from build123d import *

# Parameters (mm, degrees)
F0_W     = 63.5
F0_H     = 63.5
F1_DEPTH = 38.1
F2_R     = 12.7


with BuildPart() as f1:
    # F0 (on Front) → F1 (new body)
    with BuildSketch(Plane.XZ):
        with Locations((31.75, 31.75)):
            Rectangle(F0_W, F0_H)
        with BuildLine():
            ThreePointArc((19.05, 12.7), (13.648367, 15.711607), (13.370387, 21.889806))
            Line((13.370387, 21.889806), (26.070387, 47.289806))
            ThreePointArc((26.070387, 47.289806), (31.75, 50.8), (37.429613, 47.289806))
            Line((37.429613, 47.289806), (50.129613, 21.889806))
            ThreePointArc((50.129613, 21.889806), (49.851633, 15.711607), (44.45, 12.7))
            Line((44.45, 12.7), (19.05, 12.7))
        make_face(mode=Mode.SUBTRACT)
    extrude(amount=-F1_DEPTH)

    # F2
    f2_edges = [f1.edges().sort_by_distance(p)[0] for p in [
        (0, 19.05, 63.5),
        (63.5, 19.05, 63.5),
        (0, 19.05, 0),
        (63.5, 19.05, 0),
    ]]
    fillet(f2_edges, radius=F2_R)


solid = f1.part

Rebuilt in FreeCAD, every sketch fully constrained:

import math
import FreeCAD as App
import Part
import Sketcher
Q = App.Units.Quantity


def edges_at(feature, points):
    """Names of the edges that pass closest to the given points."""
    edges = feature.Shape.Edges
    near = lambda p: min(range(len(edges)), key=lambda i: edges[i].distToShape(Part.Vertex(*p))[0])
    return sorted({f"Edge{near(p) + 1}" for p in points})


def add_polygon(sketch, points):
    """Adds a closed chain of lines whose ends are joined by coincident constraints."""
    first, n = sketch.GeometryCount, len(points)
    for a, b in zip(points, points[1:] + points[:1]):
        sketch.addGeometry(Part.LineSegment(App.Vector(*a, 0), App.Vector(*b, 0)), False)
    for i in range(n):
        sketch.addConstraint(Sketcher.Constraint("Coincident", first + i, 2, first + (i + 1) % n, 1))

doc = App.newDocument("Part")
body = doc.addObject("PartDesign::Body", "Body")

# Sketch on XZ plane
sketch1 = body.newObject("Sketcher::SketchObject", "Sketch")
sketch1.AttachmentSupport = (doc.getObject("XZ_Plane"), [""])
sketch1.MapMode = "FlatFace"
add_polygon(sketch1, [(0, 64), (0, 0), (64, 0), (64, 64)])  # lines 0-3
sketch1.addGeometry(Part.LineSegment(App.Vector(44, 13, 0), App.Vector(19, 13, 0)), False)  # 4
sketch1.addGeometry(Part.ArcOfCircle(Part.Circle(App.Vector(19, 19, 0), App.Vector(0, 0, 1), 6), math.radians(153), math.radians(270)), False)  # 5
sketch1.addGeometry(Part.LineSegment(App.Vector(13, 22, 0), App.Vector(26, 47, 0)), False)  # 6
sketch1.addGeometry(Part.ArcOfCircle(Part.Circle(App.Vector(32, 44, 0), App.Vector(0, 0, 1), 6), math.radians(27), math.radians(153)), False)  # 7
sketch1.addGeometry(Part.LineSegment(App.Vector(37, 47, 0), App.Vector(50, 22, 0)), False)  # 8
sketch1.addGeometry(Part.ArcOfCircle(Part.Circle(App.Vector(44, 19, 0), App.Vector(0, 0, 1), 6), math.radians(-90), math.radians(27)), False)  # 9
sketch1.addConstraint(Sketcher.Constraint("Tangent", 4, 2, 5, 2))
sketch1.addConstraint(Sketcher.Constraint("Tangent", 5, 1, 6, 1))
sketch1.addConstraint(Sketcher.Constraint("Tangent", 6, 2, 7, 2))
sketch1.addConstraint(Sketcher.Constraint("Tangent", 7, 1, 8, 1))
sketch1.addConstraint(Sketcher.Constraint("Tangent", 8, 2, 9, 2))
sketch1.addConstraint(Sketcher.Constraint("Tangent", 9, 1, 4, 1))
sketch1.addConstraint(Sketcher.Constraint("Vertical", 0))
sketch1.addConstraint(Sketcher.Constraint("Horizontal", 1))
sketch1.addConstraint(Sketcher.Constraint("Vertical", 2))
sketch1.addConstraint(Sketcher.Constraint("Horizontal", 3))
sketch1.addConstraint(Sketcher.Constraint("Horizontal", 4))
sketch1.addConstraint(Sketcher.Constraint("Coincident", 0, 2, -1, 1))
sketch1.addConstraint(Sketcher.Constraint("Equal", 5, 7))
sketch1.addConstraint(Sketcher.Constraint("Equal", 7, 9))
sketch1.addConstraint(Sketcher.Constraint("Horizontal", 6, 2, 7, 1))
sketch1.addConstraint(Sketcher.Constraint("Equal", 3, 0))
sketch1.addConstraint(Sketcher.Constraint("DistanceX", 4, 2, 4, 1, Q("1 in")))
sketch1.addConstraint(Sketcher.Constraint("Radius", 5, Q("0.25 in")))
sketch1.addConstraint(Sketcher.Constraint("DistanceX", 1, 1, 1, 2, Q("2.5 in")))
sketch1.addConstraint(Sketcher.Constraint("DistanceY", 5, 3, 7, 3, Q("1 in")))
sketch1.addConstraint(Sketcher.Constraint("DistanceY", -1, 1, 4, 2, Q("0.5 in")))
sketch1.addConstraint(Sketcher.Constraint("DistanceX", -1, 1, 5, 3, Q("0.75 in")))
pad1 = body.newObject("PartDesign::Pad", "Pad")
pad1.Profile = sketch1
pad1.Length = Q("1.5 in")
pad1.Reversed = True
doc.recompute()

fillet = body.newObject("PartDesign::Fillet", "Fillet")
fillet.Base = (pad1, edges_at(pad1, [
    (0, 19.05, 63.5),
    (63.5, 19.05, 63.5),
    (0, 19.05, 0),
    (63.5, 19.05, 0),
]))
fillet.Radius = Q("0.5 in")

doc.recompute()
